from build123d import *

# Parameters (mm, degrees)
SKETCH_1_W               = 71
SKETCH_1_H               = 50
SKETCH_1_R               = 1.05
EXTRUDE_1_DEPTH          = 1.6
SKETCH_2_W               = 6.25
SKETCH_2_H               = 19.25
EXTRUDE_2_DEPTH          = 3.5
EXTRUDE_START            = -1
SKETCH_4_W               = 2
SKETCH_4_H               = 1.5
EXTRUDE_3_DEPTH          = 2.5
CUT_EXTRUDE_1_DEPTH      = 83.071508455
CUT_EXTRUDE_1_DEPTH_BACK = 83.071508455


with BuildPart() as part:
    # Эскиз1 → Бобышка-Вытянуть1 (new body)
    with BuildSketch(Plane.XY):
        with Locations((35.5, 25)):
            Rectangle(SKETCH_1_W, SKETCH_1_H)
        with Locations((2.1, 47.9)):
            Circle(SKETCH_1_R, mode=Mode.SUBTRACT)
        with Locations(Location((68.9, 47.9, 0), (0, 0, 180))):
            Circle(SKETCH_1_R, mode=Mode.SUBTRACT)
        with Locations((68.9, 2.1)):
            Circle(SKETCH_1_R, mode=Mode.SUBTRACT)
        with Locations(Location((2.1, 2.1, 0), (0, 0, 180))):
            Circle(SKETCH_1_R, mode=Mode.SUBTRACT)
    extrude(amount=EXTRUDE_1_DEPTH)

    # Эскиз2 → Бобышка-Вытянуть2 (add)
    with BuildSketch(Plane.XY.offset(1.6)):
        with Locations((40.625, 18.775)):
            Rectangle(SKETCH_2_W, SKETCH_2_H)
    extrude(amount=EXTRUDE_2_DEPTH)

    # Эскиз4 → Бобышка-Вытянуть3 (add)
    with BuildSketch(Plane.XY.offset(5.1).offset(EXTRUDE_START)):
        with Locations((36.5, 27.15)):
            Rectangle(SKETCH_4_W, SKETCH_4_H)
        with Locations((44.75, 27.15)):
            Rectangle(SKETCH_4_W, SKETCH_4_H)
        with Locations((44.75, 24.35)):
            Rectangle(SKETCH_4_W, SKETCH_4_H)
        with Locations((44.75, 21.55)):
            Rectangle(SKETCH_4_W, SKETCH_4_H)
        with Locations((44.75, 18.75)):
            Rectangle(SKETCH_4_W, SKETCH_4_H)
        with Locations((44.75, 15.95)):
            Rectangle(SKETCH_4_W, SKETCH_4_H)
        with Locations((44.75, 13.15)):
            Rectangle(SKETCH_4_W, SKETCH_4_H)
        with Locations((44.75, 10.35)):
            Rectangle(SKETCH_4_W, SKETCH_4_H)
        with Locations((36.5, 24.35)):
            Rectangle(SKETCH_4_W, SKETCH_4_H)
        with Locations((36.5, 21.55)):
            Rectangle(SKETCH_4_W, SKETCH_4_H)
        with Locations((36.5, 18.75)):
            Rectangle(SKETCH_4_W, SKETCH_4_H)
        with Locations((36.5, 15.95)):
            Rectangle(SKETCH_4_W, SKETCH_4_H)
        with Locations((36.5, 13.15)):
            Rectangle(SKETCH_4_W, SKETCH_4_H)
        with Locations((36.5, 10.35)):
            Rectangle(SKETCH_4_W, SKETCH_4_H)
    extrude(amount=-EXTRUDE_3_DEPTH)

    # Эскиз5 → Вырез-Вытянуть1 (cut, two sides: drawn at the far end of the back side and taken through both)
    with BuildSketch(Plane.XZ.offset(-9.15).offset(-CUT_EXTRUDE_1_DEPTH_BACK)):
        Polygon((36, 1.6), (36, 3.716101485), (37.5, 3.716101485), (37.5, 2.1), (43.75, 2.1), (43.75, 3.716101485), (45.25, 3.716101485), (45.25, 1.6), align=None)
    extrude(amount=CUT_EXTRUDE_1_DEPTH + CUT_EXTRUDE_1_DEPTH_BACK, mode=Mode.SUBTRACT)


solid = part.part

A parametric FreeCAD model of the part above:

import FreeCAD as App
import Part
import Sketcher
from FreeCAD import Vector
Q = App.Units.Quantity

doc = App.newDocument("Part")
params = doc.addObject("Spreadsheet::Sheet", "Params")
for row, (alias, value) in enumerate([
    ("sketch1_diameter", "2.1 mm"),
    ("sketch1_width", "71 mm"),
    ("sketch1_height", "50 mm"),
    ("pad1_length", "1.6 mm"),
    ("sketch2_width", "6.25 mm"),
    ("sketch2_height", "19.25 mm"),
    ("pad2_length", "3.5 mm"),
    ("sketch3_width", "2 mm"),
    ("sketch3_height", "1.5 mm"),
    ("pad3_length", "2.5 mm"),
    ("sketch4_width", "1.5 mm"),
    ("sketch4_width2", "9.25 mm"),
], start=1):
    params.set(f"A{row}", alias)
    params.set(f"B{row}", "=" + value)
    params.setAlias(f"B{row}", alias)

body = doc.addObject("PartDesign::Body", "Body")

sketch1 = doc.addObject("Sketcher::SketchObject", "Sketch")
body.addObject(sketch1)
sketch1.AttachmentSupport = (doc.XY_Plane, [""])
sketch1.MapMode = "FlatFace"
sketch1.addGeometry([
    Part.LineSegment(Vector(0, 50, 0), Vector(0, 0, 0)),
    Part.LineSegment(Vector(0, 0, 0), Vector(71, 0, 0)),
    Part.LineSegment(Vector(71, 0, 0), Vector(71, 50, 0)),
    Part.LineSegment(Vector(71, 50, 0), Vector(0, 50, 0)),
    Part.Circle(Vector(2.1, 2.1, 0), Vector(0, 0, 1), 1.05),
    Part.Circle(Vector(68.9, 2.1, 0), Vector(0, 0, 1), 1.05),
    Part.Circle(Vector(2.1, 47.9, 0), Vector(0, 0, 1), 1.05),
    Part.Circle(Vector(68.9, 47.9, 0), Vector(0, 0, 1), 1.05),
], False)
sketch1.addConstraint([
    Sketcher.Constraint("Coincident", 0, 2, 1, 1),
    Sketcher.Constraint("Coincident", 1, 2, 2, 1),
    Sketcher.Constraint("Coincident", 2, 2, 3, 1),
    Sketcher.Constraint("Coincident", 3, 2, 0, 1),
    Sketcher.Constraint("Vertical", 0),
    Sketcher.Constraint("Horizontal", 1),
    Sketcher.Constraint("Vertical", 2),
    Sketcher.Constraint("Horizontal", 3),
    Sketcher.Constraint("Coincident", 0, 2, -1, 1),
    Sketcher.Constraint("Equal", 4, 5),
    Sketcher.Constraint("Equal", 5, 6),
    Sketcher.Constraint("Equal", 6, 7),
    Sketcher.Constraint("Horizontal", 4, 3, 5, 3),
    Sketcher.Constraint("Horizontal", 6, 3, 7, 3),
    Sketcher.Constraint("Vertical", 4, 3, 6, 3),
    Sketcher.Constraint("Vertical", 5, 3, 7, 3),
    Sketcher.Constraint("Diameter", 4, Q("2.1 mm")),
    Sketcher.Constraint("DistanceX", 1, 1, 1, 2, Q("71 mm")),
    Sketcher.Constraint("DistanceY", 0, 2, 0, 1, Q("50 mm")),
    Sketcher.Constraint("DistanceX", -1, 1, 4, 3, Q("2.1 mm")),
    Sketcher.Constraint("DistanceY", -1, 1, 4, 3, Q("2.1 mm")),
    Sketcher.Constraint("DistanceX", -1, 1, 5, 3, Q("68.9 mm")),
    Sketcher.Constraint("DistanceY", -1, 1, 6, 3, Q("47.9 mm")),
])
sketch1.setExpression("Constraints[16]", "Params.sketch1_diameter")
sketch1.setExpression("Constraints[17]", "Params.sketch1_width")
sketch1.setExpression("Constraints[18]", "Params.sketch1_height")
pad1 = doc.addObject("PartDesign::Pad", "Pad")
body.addObject(pad1)
pad1.Profile = sketch1
pad1.setExpression("Length", "Params.pad1_length")

sketch2 = doc.addObject("Sketcher::SketchObject", "Sketch001")
body.addObject(sketch2)
sketch2.AttachmentSupport = (doc.XY_Plane, [""])
sketch2.MapMode = "FlatFace"
sketch2.AttachmentOffset = App.Placement(Vector(0, 0, 1.6), App.Rotation())
sketch2.addGeometry([
    Part.LineSegment(Vector(37.5, 28.4, 0), Vector(37.5, 9.15, 0)),
    Part.LineSegment(Vector(37.5, 9.15, 0), Vector(43.75, 9.15, 0)),
    Part.LineSegment(Vector(43.75, 9.15, 0), Vector(43.75, 28.4, 0)),
    Part.LineSegment(Vector(43.75, 28.4, 0), Vector(37.5, 28.4, 0)),
], False)
sketch2.addConstraint([
    Sketcher.Constraint("Coincident", 0, 2, 1, 1),
    Sketcher.Constraint("Coincident", 1, 2, 2, 1),
    Sketcher.Constraint("Coincident", 2, 2, 3, 1),
    Sketcher.Constraint("Coincident", 3, 2, 0, 1),
    Sketcher.Constraint("Vertical", 0),
    Sketcher.Constraint("Horizontal", 1),
    Sketcher.Constraint("Vertical", 2),
    Sketcher.Constraint("Horizontal", 3),
    Sketcher.Constraint("DistanceX", 1, 1, 1, 2, Q("6.25 mm")),
    Sketcher.Constraint("DistanceY", 0, 2, 0, 1, Q("19.25 mm")),
    Sketcher.Constraint("DistanceX", -1, 1, 0, 2, Q("37.5 mm")),
    Sketcher.Constraint("DistanceY", -1, 1, 2, 2, Q("28.4 mm")),
])
sketch2.setExpression("Constraints[8]", "Params.sketch2_width")
sketch2.setExpression("Constraints[9]", "Params.sketch2_height")
pad2 = doc.addObject("PartDesign::Pad", "Pad001")
body.addObject(pad2)
pad2.Profile = sketch2
pad2.setExpression("Length", "Params.pad2_length")

sketch3 = doc.addObject("Sketcher::SketchObject", "Sketch002")
body.addObject(sketch3)
sketch3.AttachmentSupport = (doc.XY_Plane, [""])
sketch3.MapMode = "FlatFace"
sketch3.AttachmentOffset = App.Placement(Vector(0, 0, 4.1), App.Rotation())
sketch3.addGeometry([
    Part.LineSegment(Vector(35.5, 27.9, 0), Vector(35.5, 26.4, 0)),
    Part.LineSegment(Vector(35.5, 26.4, 0), Vector(37.5, 26.4, 0)),
    Part.LineSegment(Vector(37.5, 26.4, 0), Vector(37.5, 27.9, 0)),
    Part.LineSegment(Vector(37.5, 27.9, 0), Vector(35.5, 27.9, 0)),
    Part.LineSegment(Vector(43.75, 27.9, 0), Vector(43.75, 26.4, 0)),
    Part.LineSegment(Vector(43.75, 26.4, 0), Vector(45.75, 26.4, 0)),
    Part.LineSegment(Vector(45.75, 26.4, 0), Vector(45.75, 27.9, 0)),
    Part.LineSegment(Vector(45.75, 27.9, 0), Vector(43.75, 27.9, 0)),
    Part.LineSegment(Vector(43.75, 25.1, 0), Vector(43.75, 23.6, 0)),
    Part.LineSegment(Vector(43.75, 23.6, 0), Vector(45.75, 23.6, 0)),
    Part.LineSegment(Vector(45.75, 23.6, 0), Vector(45.75, 25.1, 0)),
    Part.LineSegment(Vector(45.75, 25.1, 0), Vector(43.75, 25.1, 0)),
    Part.LineSegment(Vector(43.75, 22.3, 0), Vector(43.75, 20.8, 0)),
    Part.LineSegment(Vector(43.75, 20.8, 0), Vector(45.75, 20.8, 0)),
    Part.LineSegment(Vector(45.75, 20.8, 0), Vector(45.75, 22.3, 0)),
    Part.LineSegment(Vector(45.75, 22.3, 0), Vector(43.75, 22.3, 0)),
    Part.LineSegment(Vector(43.75, 19.5, 0), Vector(43.75, 18, 0)),
    Part.LineSegment(Vector(43.75, 18, 0), Vector(45.75, 18, 0)),
    Part.LineSegment(Vector(45.75, 18, 0), Vector(45.75, 19.5, 0)),
    Part.LineSegment(Vector(45.75, 19.5, 0), Vector(43.75, 19.5, 0)),
    Part.LineSegment(Vector(43.75, 16.7, 0), Vector(43.75, 15.2, 0)),
    Part.LineSegment(Vector(43.75, 15.2, 0), Vector(45.75, 15.2, 0)),
    Part.LineSegment(Vector(45.75, 15.2, 0), Vector(45.75, 16.7, 0)),
    Part.LineSegment(Vector(45.75, 16.7, 0), Vector(43.75, 16.7, 0)),
    Part.LineSegment(Vector(43.75, 13.9, 0), Vector(43.75, 12.4, 0)),
    Part.LineSegment(Vector(43.75, 12.4, 0), Vector(45.75, 12.4, 0)),
    Part.LineSegment(Vector(45.75, 12.4, 0), Vector(45.75, 13.9, 0)),
    Part.LineSegment(Vector(45.75, 13.9, 0), Vector(43.75, 13.9, 0)),
    Part.LineSegment(Vector(43.75, 11.1, 0), Vector(43.75, 9.6, 0)),
    Part.LineSegment(Vector(43.75, 9.6, 0), Vector(45.75, 9.6, 0)),
    Part.LineSegment(Vector(45.75, 9.6, 0), Vector(45.75, 11.1, 0)),
    Part.LineSegment(Vector(45.75, 11.1, 0), Vector(43.75, 11.1, 0)),
    Part.LineSegment(Vector(35.5, 25.1, 0), Vector(35.5, 23.6, 0)),
    Part.LineSegment(Vector(35.5, 23.6, 0), Vector(37.5, 23.6, 0)),
    Part.LineSegment(Vector(37.5, 23.6, 0), Vector(37.5, 25.1, 0)),
    Part.LineSegment(Vector(37.5, 25.1, 0), Vector(35.5, 25.1, 0)),
    Part.LineSegment(Vector(35.5, 22.3, 0), Vector(35.5, 20.8, 0)),
    Part.LineSegment(Vector(35.5, 20.8, 0), Vector(37.5, 20.8, 0)),
    Part.LineSegment(Vector(37.5, 20.8, 0), Vector(37.5, 22.3, 0)),
    Part.LineSegment(Vector(37.5, 22.3, 0), Vector(35.5, 22.3, 0)),
    Part.LineSegment(Vector(35.5, 19.5, 0), Vector(35.5, 18, 0)),
    Part.LineSegment(Vector(35.5, 18, 0), Vector(37.5, 18, 0)),
    Part.LineSegment(Vector(37.5, 18, 0), Vector(37.5, 19.5, 0)),
    Part.LineSegment(Vector(37.5, 19.5, 0), Vector(35.5, 19.5, 0)),
    Part.LineSegment(Vector(35.5, 16.7, 0), Vector(35.5, 15.2, 0)),
    Part.LineSegment(Vector(35.5, 15.2, 0), Vector(37.5, 15.2, 0)),
    Part.LineSegment(Vector(37.5, 15.2, 0), Vector(37.5, 16.7, 0)),
    Part.LineSegment(Vector(37.5, 16.7, 0), Vector(35.5, 16.7, 0)),
    Part.LineSegment(Vector(35.5, 13.9, 0), Vector(35.5, 12.4, 0)),
    Part.LineSegment(Vector(35.5, 12.4, 0), Vector(37.5, 12.4, 0)),
    Part.LineSegment(Vector(37.5, 12.4, 0), Vector(37.5, 13.9, 0)),
    Part.LineSegment(Vector(37.5, 13.9, 0), Vector(35.5, 13.9, 0)),
    Part.LineSegment(Vector(35.5, 11.1, 0), Vector(35.5, 9.6, 0)),
    Part.LineSegment(Vector(35.5, 9.6, 0), Vector(37.5, 9.6, 0)),
    Part.LineSegment(Vector(37.5, 9.6, 0), Vector(37.5, 11.1, 0)),
    Part.LineSegment(Vector(37.5, 11.1, 0), Vector(35.5, 11.1, 0)),
], False)
sketch3.addConstraint([
    Sketcher.Constraint("Coincident", 0, 2, 1, 1),
    Sketcher.Constraint("Coincident", 1, 2, 2, 1),
    Sketcher.Constraint("Coincident", 2, 2, 3, 1),
    Sketcher.Constraint("Coincident", 3, 2, 0, 1),
    Sketcher.Constraint("Coincident", 4, 2, 5, 1),
    Sketcher.Constraint("Coincident", 5, 2, 6, 1),
    Sketcher.Constraint("Coincident", 6, 2, 7, 1),
    Sketcher.Constraint("Coincident", 7, 2, 4, 1),
    Sketcher.Constraint("Coincident", 8, 2, 9, 1),
    Sketcher.Constraint("Coincident", 9, 2, 10, 1),
    Sketcher.Constraint("Coincident", 10, 2, 11, 1),
    Sketcher.Constraint("Coincident", 11, 2, 8, 1),
    Sketcher.Constraint("Coincident", 12, 2, 13, 1),
    Sketcher.Constraint("Coincident", 13, 2, 14, 1),
    Sketcher.Constraint("Coincident", 14, 2, 15, 1),
    Sketcher.Constraint("Coincident", 15, 2, 12, 1),
    Sketcher.Constraint("Coincident", 16, 2, 17, 1),
    Sketcher.Constraint("Coincident", 17, 2, 18, 1),
    Sketcher.Constraint("Coincident", 18, 2, 19, 1),
    Sketcher.Constraint("Coincident", 19, 2, 16, 1),
    Sketcher.Constraint("Coincident", 20, 2, 21, 1),
    Sketcher.Constraint("Coincident", 21, 2, 22, 1),
    Sketcher.Constraint("Coincident", 22, 2, 23, 1),
    Sketcher.Constraint("Coincident", 23, 2, 20, 1),
    Sketcher.Constraint("Coincident", 24, 2, 25, 1),
    Sketcher.Constraint("Coincident", 25, 2, 26, 1),
    Sketcher.Constraint("Coincident", 26, 2, 27, 1),
    Sketcher.Constraint("Coincident", 27, 2, 24, 1),
    Sketcher.Constraint("Coincident", 28, 2, 29, 1),
    Sketcher.Constraint("Coincident", 29, 2, 30, 1),
    Sketcher.Constraint("Coincident", 30, 2, 31, 1),
    Sketcher.Constraint("Coincident", 31, 2, 28, 1),
    Sketcher.Constraint("Coincident", 32, 2, 33, 1),
    Sketcher.Constraint("Coincident", 33, 2, 34, 1),
    Sketcher.Constraint("Coincident", 34, 2, 35, 1),
    Sketcher.Constraint("Coincident", 35, 2, 32, 1),
    Sketcher.Constraint("Coincident", 36, 2, 37, 1),
    Sketcher.Constraint("Coincident", 37, 2, 38, 1),
    Sketcher.Constraint("Coincident", 38, 2, 39, 1),
    Sketcher.Constraint("Coincident", 39, 2, 36, 1),
    Sketcher.Constraint("Coincident", 40, 2, 41, 1),
    Sketcher.Constraint("Coincident", 41, 2, 42, 1),
    Sketcher.Constraint("Coincident", 42, 2, 43, 1),
    Sketcher.Constraint("Coincident", 43, 2, 40, 1),
    Sketcher.Constraint("Coincident", 44, 2, 45, 1),
    Sketcher.Constraint("Coincident", 45, 2, 46, 1),
    Sketcher.Constraint("Coincident", 46, 2, 47, 1),
    Sketcher.Constraint("Coincident", 47, 2, 44, 1),
    Sketcher.Constraint("Coincident", 48, 2, 49, 1),
    Sketcher.Constraint("Coincident", 49, 2, 50, 1),
    Sketcher.Constraint("Coincident", 50, 2, 51, 1),
    Sketcher.Constraint("Coincident", 51, 2, 48, 1),
    Sketcher.Constraint("Coincident", 52, 2, 53, 1),
    Sketcher.Constraint("Coincident", 53, 2, 54, 1),
    Sketcher.Constraint("Coincident", 54, 2, 55, 1),
    Sketcher.Constraint("Coincident", 55, 2, 52, 1),
    Sketcher.Constraint("Vertical", 0),
    Sketcher.Constraint("Horizontal", 1),
    Sketcher.Constraint("Vertical", 2),
    Sketcher.Constraint("Horizontal", 3),
    Sketcher.Constraint("Vertical", 4),
    Sketcher.Constraint("Horizontal", 5),
    Sketcher.Constraint("Vertical", 6),
    Sketcher.Constraint("Horizontal", 7),
    Sketcher.Constraint("Vertical", 8),
    Sketcher.Constraint("Horizontal", 9),
    Sketcher.Constraint("Vertical", 10),
    Sketcher.Constraint("Horizontal", 11),
    Sketcher.Constraint("Vertical", 12),
    Sketcher.Constraint("Horizontal", 13),
    Sketcher.Constraint("Vertical", 14),
    Sketcher.Constraint("Horizontal", 15),
    Sketcher.Constraint("Vertical", 16),
    Sketcher.Constraint("Horizontal", 17),
    Sketcher.Constraint("Vertical", 18),
    Sketcher.Constraint("Horizontal", 19),
    Sketcher.Constraint("Vertical", 20),
    Sketcher.Constraint("Horizontal", 21),
    Sketcher.Constraint("Vertical", 22),
    Sketcher.Constraint("Horizontal", 23),
    Sketcher.Constraint("Vertical", 24),
    Sketcher.Constraint("Horizontal", 25),
    Sketcher.Constraint("Vertical", 26),
    Sketcher.Constraint("Horizontal", 27),
    Sketcher.Constraint("Vertical", 28),
    Sketcher.Constraint("Horizontal", 29),
    Sketcher.Constraint("Vertical", 30),
    Sketcher.Constraint("Horizontal", 31),
    Sketcher.Constraint("Vertical", 32),
    Sketcher.Constraint("Horizontal", 33),
    Sketcher.Constraint("Vertical", 34),
    Sketcher.Constraint("Horizontal", 35),
    Sketcher.Constraint("Vertical", 36),
    Sketcher.Constraint("Horizontal", 37),
    Sketcher.Constraint("Vertical", 38),
    Sketcher.Constraint("Horizontal", 39),
    Sketcher.Constraint("Vertical", 40),
    Sketcher.Constraint("Horizontal", 41),
    Sketcher.Constraint("Vertical", 42),
    Sketcher.Constraint("Horizontal", 43),
    Sketcher.Constraint("Vertical", 44),
    Sketcher.Constraint("Horizontal", 45),
    Sketcher.Constraint("Vertical", 46),
    Sketcher.Constraint("Horizontal", 47),
    Sketcher.Constraint("Vertical", 48),
    Sketcher.Constraint("Horizontal", 49),
    Sketcher.Constraint("Vertical", 50),
    Sketcher.Constraint("Horizontal", 51),
    Sketcher.Constraint("Vertical", 52),
    Sketcher.Constraint("Horizontal", 53),
    Sketcher.Constraint("Vertical", 54),
    Sketcher.Constraint("Horizontal", 55),
    Sketcher.Constraint("Horizontal", 1, 2, 4, 2),
    Sketcher.Constraint("Horizontal", 3, 2, 6, 2),
    Sketcher.Constraint("Horizontal", 9, 2, 32, 2),
    Sketcher.Constraint("Horizontal", 11, 2, 34, 2),
    Sketcher.Constraint("Horizontal", 13, 2, 36, 2),
    Sketcher.Constraint("Horizontal", 15, 2, 38, 2),
    Sketcher.Constraint("Horizontal", 17, 2, 40, 2),
    Sketcher.Constraint("Horizontal", 19, 2, 42, 2),
    Sketcher.Constraint("Horizontal", 21, 2, 44, 2),
    Sketcher.Constraint("Horizontal", 23, 2, 46, 2),
    Sketcher.Constraint("Horizontal", 25, 2, 48, 2),
    Sketcher.Constraint("Horizontal", 27, 2, 50, 2),
    Sketcher.Constraint("Horizontal", 29, 2, 52, 2),
    Sketcher.Constraint("Horizontal", 31, 2, 54, 2),
    Sketcher.Constraint("Vertical", 7, 2, 8, 2),
    Sketcher.Constraint("Vertical", 6, 2, 9, 2),
    Sketcher.Constraint("Vertical", 11, 2, 12, 2),
    Sketcher.Constraint("Vertical", 10, 2, 13, 2),
    Sketcher.Constraint("Vertical", 15, 2, 16, 2),
    Sketcher.Constraint("Vertical", 14, 2, 17, 2),
    Sketcher.Constraint("Vertical", 19, 2, 20, 2),
    Sketcher.Constraint("Vertical", 18, 2, 21, 2),
    Sketcher.Constraint("Vertical", 23, 2, 24, 2),
    Sketcher.Constraint("Vertical", 22, 2, 25, 2),
    Sketcher.Constraint("Vertical", 27, 2, 28, 2),
    Sketcher.Constraint("Vertical", 26, 2, 29, 2),
    Sketcher.Constraint("Vertical", 3, 2, 32, 2),
    Sketcher.Constraint("Vertical", 2, 2, 33, 2),
    Sketcher.Constraint("Vertical", 35, 2, 36, 2),
    Sketcher.Constraint("Vertical", 34, 2, 37, 2),
    Sketcher.Constraint("Vertical", 39, 2, 40, 2),
    Sketcher.Constraint("Vertical", 38, 2, 41, 2),
    Sketcher.Constraint("Vertical", 43, 2, 44, 2),
    Sketcher.Constraint("Vertical", 42, 2, 45, 2),
    Sketcher.Constraint("Vertical", 47, 2, 48, 2),
    Sketcher.Constraint("Vertical", 46, 2, 49, 2),
    Sketcher.Constraint("Vertical", 51, 2, 52, 2),
    Sketcher.Constraint("Vertical", 50, 2, 53, 2),
    Sketcher.Constraint("Equal", 3, 5),
    Sketcher.Constraint("Equal", 6, 8),
    Sketcher.Constraint("Equal", 10, 12),
    Sketcher.Constraint("Equal", 14, 16),
    Sketcher.Constraint("Equal", 18, 20),
    Sketcher.Constraint("Equal", 22, 24),
    Sketcher.Constraint("Equal", 26, 28),
    Sketcher.Constraint("DistanceX", 1, 1, 1, 2, Q("2 mm")),
    Sketcher.Constraint("DistanceY", 0, 2, 0, 1, Q("1.5 mm")),
    Sketcher.Constraint("DistanceY", -1, 1, 16, 2, Q("18 mm")),
    Sketcher.Constraint("DistanceX", -1, 1, 0, 2, Q("35.5 mm")),
    Sketcher.Constraint("DistanceY", -1, 1, 0, 2, Q("26.4 mm")),
    Sketcher.Constraint("DistanceY", -1, 1, 8, 2, Q("23.6 mm")),
    Sketcher.Constraint("DistanceY", -1, 1, 12, 2, Q("20.8 mm")),
    Sketcher.Constraint("DistanceY", -1, 1, 20, 2, Q("15.2 mm")),
    Sketcher.Constraint("DistanceY", -1, 1, 24, 2, Q("12.4 mm")),
    Sketcher.Constraint("DistanceY", -1, 1, 28, 2, Q("9.6 mm")),
    Sketcher.Constraint("DistanceX", -1, 1, 4, 2, Q("43.75 mm")),
])
sketch3.setExpression("Constraints[157]", "Params.sketch3_width")
sketch3.setExpression("Constraints[158]", "Params.sketch3_height")
pad3 = doc.addObject("PartDesign::Pad", "Pad002")
body.addObject(pad3)
pad3.Profile = sketch3
pad3.setExpression("Length", "Params.pad3_length")
pad3.Reversed = True

sketch4 = doc.addObject("Sketcher::SketchObject", "Sketch003")
body.addObject(sketch4)
sketch4.AttachmentSupport = (doc.XZ_Plane, [""])
sketch4.MapMode = "FlatFace"
sketch4.AttachmentOffset = App.Placement(Vector(0, 0, -9.15), App.Rotation())
sketch4.addGeometry([
    Part.LineSegment(Vector(36, 3.716101, 0), Vector(36, 1.6, 0)),
    Part.LineSegment(Vector(36, 1.6, 0), Vector(45.25, 1.6, 0)),
    Part.LineSegment(Vector(45.25, 1.6, 0), Vector(45.25, 3.716101, 0)),
    Part.LineSegment(Vector(45.25, 3.716101, 0), Vector(43.75, 3.716101, 0)),
    Part.LineSegment(Vector(43.75, 3.716101, 0), Vector(43.75, 2.1, 0)),
    Part.LineSegment(Vector(43.75, 2.1, 0), Vector(37.5, 2.1, 0)),
    Part.LineSegment(Vector(37.5, 2.1, 0), Vector(37.5, 3.716101, 0)),
    Part.LineSegment(Vector(37.5, 3.716101, 0), Vector(36, 3.716101, 0)),
], False)
sketch4.addConstraint([
    Sketcher.Constraint("Coincident", 0, 2, 1, 1),
    Sketcher.Constraint("Coincident", 1, 2, 2, 1),
    Sketcher.Constraint("Coincident", 2, 2, 3, 1),
    Sketcher.Constraint("Coincident", 3, 2, 4, 1),
    Sketcher.Constraint("Coincident", 4, 2, 5, 1),
    Sketcher.Constraint("Coincident", 5, 2, 6, 1),
    Sketcher.Constraint("Coincident", 6, 2, 7, 1),
    Sketcher.Constraint("Coincident", 7, 2, 0, 1),
    Sketcher.Constraint("Vertical", 0),
    Sketcher.Constraint("Horizontal", 1),
    Sketcher.Constraint("Vertical", 2),
    Sketcher.Constraint("Horizontal", 3),
    Sketcher.Constraint("Vertical", 4),
    Sketcher.Constraint("Horizontal", 5),
    Sketcher.Constraint("Vertical", 6),
    Sketcher.Constraint("Horizontal", 7),
    Sketcher.Constraint("Horizontal", 3, 2, 6, 2),
    Sketcher.Constraint("Equal", 3, 7),
    Sketcher.Constraint("DistanceX", 3, 2, 3, 1, Q("1.5 mm")),
    Sketcher.Constraint("DistanceX", -1, 1, 0, 2, Q("36 mm")),
    Sketcher.Constraint("DistanceX", 1, 1, 1, 2, Q("9.25 mm")),
    Sketcher.Constraint("DistanceY", -1, 1, 0, 2, Q("1.6 mm")),
    Sketcher.Constraint("DistanceY", -1, 1, 4, 2, Q("2.1 mm")),
    Sketcher.Constraint("DistanceY", 0, 2, 0, 1, Q("2.116101 mm")),
])
sketch4.setExpression("Constraints[18]", "Params.sketch4_width")
sketch4.setExpression("Constraints[20]", "Params.sketch4_width2")
pocket1 = doc.addObject("PartDesign::Pocket", "Pocket")
body.addObject(pocket1)
pocket1.Profile = sketch4
pocket1.Type = "ThroughAll"
pocket1.Midplane = True

doc.recompute()
